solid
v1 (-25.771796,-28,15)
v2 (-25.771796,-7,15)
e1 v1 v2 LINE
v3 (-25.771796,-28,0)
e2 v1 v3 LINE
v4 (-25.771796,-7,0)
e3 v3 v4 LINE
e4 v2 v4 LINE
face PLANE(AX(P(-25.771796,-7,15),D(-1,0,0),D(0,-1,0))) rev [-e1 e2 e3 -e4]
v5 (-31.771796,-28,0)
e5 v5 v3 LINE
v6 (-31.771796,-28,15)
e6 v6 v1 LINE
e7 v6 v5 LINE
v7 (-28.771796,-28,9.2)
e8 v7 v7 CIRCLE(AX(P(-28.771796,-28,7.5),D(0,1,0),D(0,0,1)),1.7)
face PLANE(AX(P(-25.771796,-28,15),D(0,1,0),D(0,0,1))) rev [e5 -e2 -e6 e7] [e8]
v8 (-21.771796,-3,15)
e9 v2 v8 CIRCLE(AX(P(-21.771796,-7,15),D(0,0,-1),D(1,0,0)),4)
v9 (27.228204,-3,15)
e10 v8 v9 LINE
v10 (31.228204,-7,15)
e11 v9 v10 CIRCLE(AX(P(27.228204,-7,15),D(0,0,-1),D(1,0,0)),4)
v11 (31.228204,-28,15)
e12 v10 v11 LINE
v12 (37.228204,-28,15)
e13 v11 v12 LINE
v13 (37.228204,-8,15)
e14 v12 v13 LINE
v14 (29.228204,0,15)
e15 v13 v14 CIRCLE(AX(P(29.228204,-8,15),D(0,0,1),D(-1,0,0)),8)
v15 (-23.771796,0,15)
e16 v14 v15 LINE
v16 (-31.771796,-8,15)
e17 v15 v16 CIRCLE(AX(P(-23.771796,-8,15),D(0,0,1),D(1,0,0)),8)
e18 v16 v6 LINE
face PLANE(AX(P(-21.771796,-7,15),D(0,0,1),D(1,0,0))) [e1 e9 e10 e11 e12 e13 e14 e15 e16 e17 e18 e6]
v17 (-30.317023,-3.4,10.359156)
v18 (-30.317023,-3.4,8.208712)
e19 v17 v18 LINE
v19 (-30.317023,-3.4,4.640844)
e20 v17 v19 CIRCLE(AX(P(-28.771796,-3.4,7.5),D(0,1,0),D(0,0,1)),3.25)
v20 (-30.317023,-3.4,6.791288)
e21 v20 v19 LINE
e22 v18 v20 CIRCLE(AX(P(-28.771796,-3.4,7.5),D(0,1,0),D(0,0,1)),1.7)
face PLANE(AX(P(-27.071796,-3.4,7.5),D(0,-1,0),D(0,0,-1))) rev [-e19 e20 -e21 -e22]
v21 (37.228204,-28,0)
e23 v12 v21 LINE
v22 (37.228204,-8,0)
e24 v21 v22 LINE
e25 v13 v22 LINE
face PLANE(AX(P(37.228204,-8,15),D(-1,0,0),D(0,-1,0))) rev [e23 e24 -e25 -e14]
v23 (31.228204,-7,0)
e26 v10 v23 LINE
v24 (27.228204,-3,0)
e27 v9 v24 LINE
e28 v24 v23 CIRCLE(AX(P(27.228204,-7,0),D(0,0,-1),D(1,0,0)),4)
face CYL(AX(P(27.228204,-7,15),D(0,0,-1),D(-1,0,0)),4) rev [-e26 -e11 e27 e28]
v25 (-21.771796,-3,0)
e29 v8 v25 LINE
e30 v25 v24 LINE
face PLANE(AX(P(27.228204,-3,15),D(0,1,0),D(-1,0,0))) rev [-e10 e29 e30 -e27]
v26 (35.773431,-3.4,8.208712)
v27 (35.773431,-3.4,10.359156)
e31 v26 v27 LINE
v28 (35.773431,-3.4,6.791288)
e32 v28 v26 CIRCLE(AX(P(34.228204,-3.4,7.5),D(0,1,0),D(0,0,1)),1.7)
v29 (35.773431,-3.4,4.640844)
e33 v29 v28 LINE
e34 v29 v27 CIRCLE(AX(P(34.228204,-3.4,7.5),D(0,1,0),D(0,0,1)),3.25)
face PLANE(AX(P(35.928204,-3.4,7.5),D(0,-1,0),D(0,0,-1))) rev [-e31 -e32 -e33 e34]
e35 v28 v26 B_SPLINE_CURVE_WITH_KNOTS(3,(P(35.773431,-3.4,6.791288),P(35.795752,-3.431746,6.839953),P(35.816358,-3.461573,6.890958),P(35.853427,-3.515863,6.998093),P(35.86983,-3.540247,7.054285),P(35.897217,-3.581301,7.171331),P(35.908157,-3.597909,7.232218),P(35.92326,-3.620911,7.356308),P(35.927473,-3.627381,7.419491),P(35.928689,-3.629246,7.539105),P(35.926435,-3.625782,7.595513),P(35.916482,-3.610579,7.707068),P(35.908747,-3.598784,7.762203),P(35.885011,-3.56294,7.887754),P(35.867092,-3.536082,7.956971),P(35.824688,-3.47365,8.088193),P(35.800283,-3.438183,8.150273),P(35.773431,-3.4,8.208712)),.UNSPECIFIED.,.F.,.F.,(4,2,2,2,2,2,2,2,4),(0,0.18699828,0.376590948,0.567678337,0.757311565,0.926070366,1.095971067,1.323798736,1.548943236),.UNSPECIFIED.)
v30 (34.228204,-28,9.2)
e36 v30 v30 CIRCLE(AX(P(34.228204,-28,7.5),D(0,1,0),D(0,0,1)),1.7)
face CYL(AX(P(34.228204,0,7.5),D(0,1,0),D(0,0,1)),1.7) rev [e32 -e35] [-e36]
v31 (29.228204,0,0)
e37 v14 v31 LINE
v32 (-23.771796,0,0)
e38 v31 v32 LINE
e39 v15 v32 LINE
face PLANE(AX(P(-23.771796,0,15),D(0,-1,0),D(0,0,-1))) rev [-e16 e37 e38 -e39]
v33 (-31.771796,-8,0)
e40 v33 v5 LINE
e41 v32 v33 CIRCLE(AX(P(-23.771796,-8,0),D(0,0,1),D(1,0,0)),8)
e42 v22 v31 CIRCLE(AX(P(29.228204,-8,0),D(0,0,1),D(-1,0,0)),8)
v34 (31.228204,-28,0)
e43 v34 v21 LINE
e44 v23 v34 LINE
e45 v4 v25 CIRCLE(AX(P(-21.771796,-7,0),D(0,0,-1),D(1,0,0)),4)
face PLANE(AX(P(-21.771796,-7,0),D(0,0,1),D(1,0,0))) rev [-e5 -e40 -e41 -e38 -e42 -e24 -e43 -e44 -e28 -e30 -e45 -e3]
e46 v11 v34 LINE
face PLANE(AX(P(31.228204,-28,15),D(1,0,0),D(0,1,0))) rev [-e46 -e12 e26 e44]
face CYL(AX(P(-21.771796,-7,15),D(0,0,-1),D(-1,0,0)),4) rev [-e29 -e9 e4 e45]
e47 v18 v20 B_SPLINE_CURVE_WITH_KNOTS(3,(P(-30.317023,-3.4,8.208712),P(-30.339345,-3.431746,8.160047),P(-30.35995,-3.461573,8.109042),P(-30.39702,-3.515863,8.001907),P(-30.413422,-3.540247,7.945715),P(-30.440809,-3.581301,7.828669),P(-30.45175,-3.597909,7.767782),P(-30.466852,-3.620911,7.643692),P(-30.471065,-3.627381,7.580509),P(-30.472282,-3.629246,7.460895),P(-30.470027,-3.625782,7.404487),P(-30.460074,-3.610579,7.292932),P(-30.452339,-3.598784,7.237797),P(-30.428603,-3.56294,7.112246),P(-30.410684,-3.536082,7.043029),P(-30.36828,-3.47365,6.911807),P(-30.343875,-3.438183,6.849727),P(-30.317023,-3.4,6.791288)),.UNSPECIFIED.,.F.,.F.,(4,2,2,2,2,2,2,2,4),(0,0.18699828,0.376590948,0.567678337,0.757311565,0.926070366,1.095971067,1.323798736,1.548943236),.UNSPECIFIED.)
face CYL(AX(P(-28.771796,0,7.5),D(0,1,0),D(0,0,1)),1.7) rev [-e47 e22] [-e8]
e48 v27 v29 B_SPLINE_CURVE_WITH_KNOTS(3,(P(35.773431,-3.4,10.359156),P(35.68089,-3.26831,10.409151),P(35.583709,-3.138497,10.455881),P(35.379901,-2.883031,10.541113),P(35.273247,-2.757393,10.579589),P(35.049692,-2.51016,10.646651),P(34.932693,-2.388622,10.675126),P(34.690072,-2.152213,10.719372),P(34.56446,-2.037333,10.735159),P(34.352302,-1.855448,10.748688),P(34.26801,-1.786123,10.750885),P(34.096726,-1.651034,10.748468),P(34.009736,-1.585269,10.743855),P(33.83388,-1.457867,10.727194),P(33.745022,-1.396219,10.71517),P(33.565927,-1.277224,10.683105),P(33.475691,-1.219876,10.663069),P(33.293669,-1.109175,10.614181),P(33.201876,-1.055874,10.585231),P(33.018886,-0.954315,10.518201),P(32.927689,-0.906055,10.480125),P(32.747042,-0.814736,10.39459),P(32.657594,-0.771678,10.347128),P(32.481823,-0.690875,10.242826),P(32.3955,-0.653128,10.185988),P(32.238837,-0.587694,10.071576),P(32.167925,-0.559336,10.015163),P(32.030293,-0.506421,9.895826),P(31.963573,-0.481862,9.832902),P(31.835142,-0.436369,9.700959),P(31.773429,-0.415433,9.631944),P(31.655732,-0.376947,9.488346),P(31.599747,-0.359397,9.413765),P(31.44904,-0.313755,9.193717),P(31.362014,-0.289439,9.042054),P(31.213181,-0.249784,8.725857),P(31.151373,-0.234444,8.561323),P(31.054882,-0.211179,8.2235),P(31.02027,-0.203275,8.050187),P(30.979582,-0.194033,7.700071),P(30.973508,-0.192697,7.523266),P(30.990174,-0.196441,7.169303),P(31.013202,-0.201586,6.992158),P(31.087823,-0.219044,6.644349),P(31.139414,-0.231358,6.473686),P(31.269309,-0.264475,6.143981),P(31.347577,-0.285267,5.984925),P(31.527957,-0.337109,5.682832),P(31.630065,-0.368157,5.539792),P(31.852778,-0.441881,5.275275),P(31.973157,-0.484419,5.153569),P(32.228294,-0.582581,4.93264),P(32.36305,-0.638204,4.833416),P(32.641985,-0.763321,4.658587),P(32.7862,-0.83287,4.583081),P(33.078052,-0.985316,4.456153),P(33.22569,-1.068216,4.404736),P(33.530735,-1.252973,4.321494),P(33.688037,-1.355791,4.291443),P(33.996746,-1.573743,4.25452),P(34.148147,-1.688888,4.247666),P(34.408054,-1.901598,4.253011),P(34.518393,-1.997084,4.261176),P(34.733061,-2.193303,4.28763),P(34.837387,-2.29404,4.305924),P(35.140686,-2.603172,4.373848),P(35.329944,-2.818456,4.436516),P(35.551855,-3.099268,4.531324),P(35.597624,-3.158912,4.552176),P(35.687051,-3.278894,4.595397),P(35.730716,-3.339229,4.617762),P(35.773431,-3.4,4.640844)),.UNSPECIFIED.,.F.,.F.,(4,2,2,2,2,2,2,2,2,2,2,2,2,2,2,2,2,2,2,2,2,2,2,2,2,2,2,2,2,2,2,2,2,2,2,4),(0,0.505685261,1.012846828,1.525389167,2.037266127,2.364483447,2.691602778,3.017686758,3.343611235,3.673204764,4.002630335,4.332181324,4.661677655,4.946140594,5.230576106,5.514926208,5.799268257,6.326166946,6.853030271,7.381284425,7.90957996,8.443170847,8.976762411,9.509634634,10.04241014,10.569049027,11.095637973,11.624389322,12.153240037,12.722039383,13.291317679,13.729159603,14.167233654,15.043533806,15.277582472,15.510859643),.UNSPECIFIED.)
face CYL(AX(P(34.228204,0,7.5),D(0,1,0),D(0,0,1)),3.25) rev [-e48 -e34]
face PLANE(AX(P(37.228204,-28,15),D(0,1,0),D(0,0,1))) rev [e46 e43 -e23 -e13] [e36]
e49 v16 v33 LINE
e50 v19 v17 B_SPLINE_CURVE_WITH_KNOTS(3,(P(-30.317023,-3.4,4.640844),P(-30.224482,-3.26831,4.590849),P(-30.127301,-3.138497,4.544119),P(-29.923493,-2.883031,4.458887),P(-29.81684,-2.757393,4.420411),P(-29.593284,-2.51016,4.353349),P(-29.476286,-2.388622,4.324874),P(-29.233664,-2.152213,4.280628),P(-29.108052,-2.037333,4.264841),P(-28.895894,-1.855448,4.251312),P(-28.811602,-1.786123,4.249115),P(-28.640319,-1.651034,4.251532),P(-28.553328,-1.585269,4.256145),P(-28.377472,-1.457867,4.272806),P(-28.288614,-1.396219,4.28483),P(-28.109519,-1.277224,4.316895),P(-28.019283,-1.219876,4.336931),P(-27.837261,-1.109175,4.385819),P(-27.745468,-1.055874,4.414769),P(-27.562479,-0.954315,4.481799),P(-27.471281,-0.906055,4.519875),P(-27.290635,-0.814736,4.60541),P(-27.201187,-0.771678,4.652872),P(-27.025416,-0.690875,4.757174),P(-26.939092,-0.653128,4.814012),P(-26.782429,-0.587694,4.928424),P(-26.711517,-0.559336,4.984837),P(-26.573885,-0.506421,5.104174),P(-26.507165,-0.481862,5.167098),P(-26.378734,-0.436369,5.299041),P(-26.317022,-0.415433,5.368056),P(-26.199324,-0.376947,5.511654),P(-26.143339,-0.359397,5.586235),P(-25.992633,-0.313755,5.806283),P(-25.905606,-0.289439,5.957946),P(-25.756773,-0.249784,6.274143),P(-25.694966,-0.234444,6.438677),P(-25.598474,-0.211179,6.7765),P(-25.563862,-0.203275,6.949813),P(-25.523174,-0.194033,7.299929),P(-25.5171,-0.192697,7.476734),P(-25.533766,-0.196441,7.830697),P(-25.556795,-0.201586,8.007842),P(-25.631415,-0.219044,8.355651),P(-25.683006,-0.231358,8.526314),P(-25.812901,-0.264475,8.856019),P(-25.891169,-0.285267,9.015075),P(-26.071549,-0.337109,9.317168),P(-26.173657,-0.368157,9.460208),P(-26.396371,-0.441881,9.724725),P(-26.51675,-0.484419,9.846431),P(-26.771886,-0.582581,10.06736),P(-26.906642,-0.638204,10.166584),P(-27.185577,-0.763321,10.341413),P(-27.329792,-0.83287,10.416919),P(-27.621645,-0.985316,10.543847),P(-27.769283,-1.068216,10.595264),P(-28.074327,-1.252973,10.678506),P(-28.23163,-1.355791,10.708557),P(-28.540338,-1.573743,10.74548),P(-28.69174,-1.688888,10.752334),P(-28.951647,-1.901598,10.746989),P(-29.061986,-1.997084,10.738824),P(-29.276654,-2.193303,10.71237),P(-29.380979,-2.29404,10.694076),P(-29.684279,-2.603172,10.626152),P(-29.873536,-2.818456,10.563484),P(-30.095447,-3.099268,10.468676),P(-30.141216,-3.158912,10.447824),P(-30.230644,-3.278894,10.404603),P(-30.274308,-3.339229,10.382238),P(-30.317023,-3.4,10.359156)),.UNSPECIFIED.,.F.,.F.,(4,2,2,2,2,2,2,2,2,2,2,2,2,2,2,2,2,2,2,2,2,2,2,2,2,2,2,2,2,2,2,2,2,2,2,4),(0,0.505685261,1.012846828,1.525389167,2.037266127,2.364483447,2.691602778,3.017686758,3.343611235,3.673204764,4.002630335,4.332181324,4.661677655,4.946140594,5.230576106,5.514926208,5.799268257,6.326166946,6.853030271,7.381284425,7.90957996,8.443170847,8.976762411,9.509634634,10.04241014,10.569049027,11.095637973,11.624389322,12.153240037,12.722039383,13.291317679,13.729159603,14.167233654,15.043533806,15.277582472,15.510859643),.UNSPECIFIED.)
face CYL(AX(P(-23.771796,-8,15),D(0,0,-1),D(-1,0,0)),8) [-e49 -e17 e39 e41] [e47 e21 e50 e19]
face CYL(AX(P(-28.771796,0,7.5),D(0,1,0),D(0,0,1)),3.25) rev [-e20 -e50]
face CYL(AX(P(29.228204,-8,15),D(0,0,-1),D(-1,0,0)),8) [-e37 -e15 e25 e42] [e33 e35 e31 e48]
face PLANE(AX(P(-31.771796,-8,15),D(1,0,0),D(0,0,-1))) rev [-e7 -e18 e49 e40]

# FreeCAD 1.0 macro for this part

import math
import FreeCAD as App
import Part
import Sketcher
Q = App.Units.Quantity

doc = App.newDocument("Part")
body = doc.addObject("PartDesign::Body", "Body")

# Sketch on XY plane
sketch1 = body.newObject("Sketcher::SketchObject", "Sketch")
sketch1.AttachmentSupport = (doc.getObject("XY_Plane"), [""])
sketch1.MapMode = "FlatFace"
sketch1.addGeometry([
    Part.LineSegment(App.Vector(29.2, 0, 0), App.Vector(-23.8, 0, 0)),  # 0
    Part.ArcOfCircle(Part.Circle(App.Vector(-23.8, -8, 0), App.Vector(0, 0, 1), 8), math.radians(90), math.radians(180)),  # 1
    Part.LineSegment(App.Vector(-31.8, -8, 0), App.Vector(-31.8, -28, 0)),  # 2
    Part.LineSegment(App.Vector(-31.8, -28, 0), App.Vector(-25.8, -28, 0)),  # 3
    Part.LineSegment(App.Vector(-25.8, -28, 0), App.Vector(-25.8, -7, 0)),  # 4
    Part.ArcOfCircle(Part.Circle(App.Vector(-21.8, -7, 0), App.Vector(0, 0, 1), 4), math.radians(90), math.radians(180)),  # 5
    Part.LineSegment(App.Vector(-21.8, -3, 0), App.Vector(27.2, -3, 0)),  # 6
    Part.ArcOfCircle(Part.Circle(App.Vector(27.2, -7, 0), App.Vector(0, 0, 1), 4), math.radians(0), math.radians(90)),  # 7
    Part.LineSegment(App.Vector(31.2, -7, 0), App.Vector(31.2, -28, 0)),  # 8
    Part.LineSegment(App.Vector(31.2, -28, 0), App.Vector(37.2, -28, 0)),  # 9
    Part.LineSegment(App.Vector(37.2, -28, 0), App.Vector(37.2, -8, 0)),  # 10
    Part.ArcOfCircle(Part.Circle(App.Vector(29.2, -8, 0), App.Vector(0, 0, 1), 8), math.radians(0), math.radians(90)),  # 11
], False)
sketch1.addConstraint([
    Sketcher.Constraint("Tangent", 0, 2, 1, 1),
    Sketcher.Constraint("Tangent", 1, 2, 2, 1),
    Sketcher.Constraint("Coincident", 2, 2, 3, 1),
    Sketcher.Constraint("Coincident", 3, 2, 4, 1),
    Sketcher.Constraint("Tangent", 4, 2, 5, 2),
    Sketcher.Constraint("Tangent", 5, 1, 6, 1),
    Sketcher.Constraint("Tangent", 6, 2, 7, 2),
    Sketcher.Constraint("Tangent", 7, 1, 8, 1),
    Sketcher.Constraint("Coincident", 8, 2, 9, 1),
    Sketcher.Constraint("Coincident", 9, 2, 10, 1),
    Sketcher.Constraint("Tangent", 10, 2, 11, 1),
    Sketcher.Constraint("Tangent", 11, 2, 0, 1),
    Sketcher.Constraint("Horizontal", 0),
    Sketcher.Constraint("Vertical", 2),
    Sketcher.Constraint("Horizontal", 3),
    Sketcher.Constraint("Vertical", 4),
    Sketcher.Constraint("Horizontal", 6),
    Sketcher.Constraint("Vertical", 8),
    Sketcher.Constraint("Horizontal", 9),
    Sketcher.Constraint("Vertical", 10),
    Sketcher.Constraint("Equal", 5, 7),
    Sketcher.Constraint("Equal", 1, 11),
    Sketcher.Constraint("PointOnObject", 0, 2, -1),
    Sketcher.Constraint("Horizontal", 3, 2, 8, 2),
    Sketcher.Constraint("Equal", 3, 9),
    Sketcher.Constraint("Radius", 1, Q("8 mm")),
    Sketcher.Constraint("Radius", 5, Q("4 mm")),
    Sketcher.Constraint("DistanceX", 0, 2, 0, 1, Q("53 mm")),
    Sketcher.Constraint("DistanceX", 3, 1, 3, 2, Q("6 mm")),
    Sketcher.Constraint("DistanceY", 2, 2, 2, 1, Q("20 mm")),
    Sketcher.Constraint("DistanceY", 4, 1, 4, 2, Q("21 mm")),
    Sketcher.Constraint("DistanceX", 1, 3, -1, 1, Q("23.771796 mm")),
])
pad1 = body.newObject("PartDesign::Pad", "Pad")
pad1.Profile = sketch1
pad1.Length = 15

# Sketch on XZ plane
sketch2 = body.newObject("Sketcher::SketchObject", "Sketch001")
sketch2.AttachmentSupport = (doc.getObject("XZ_Plane"), [""])
sketch2.MapMode = "FlatFace"
sketch2.addGeometry([
    Part.Circle(App.Vector(-28.8, 7.5, 0), App.Vector(0, 0, 1), 1.7),
    Part.Circle(App.Vector(34.2, 7.5, 0), App.Vector(0, 0, 1), 1.7),
], False)
sketch2.addConstraint([
    Sketcher.Constraint("Equal", 0, 1),
    Sketcher.Constraint("Horizontal", 0, 3, 1, 3),
    Sketcher.Constraint("Diameter", 0, Q("3.4 mm")),
    Sketcher.Constraint("DistanceX", 0, 3, 1, 3, Q("63 mm")),
    Sketcher.Constraint("DistanceY", -1, 1, 0, 3, Q("7.5 mm")),
    Sketcher.Constraint("DistanceX", 0, 3, -1, 1, Q("28.771796 mm")),
])
doc.recompute()
hole = body.newObject("PartDesign::Hole", "Hole")
hole.Profile = sketch2
hole.ThreadType = "None"
hole.Diameter = 3.4
hole.DepthType = "ThroughAll"
hole.HoleCutType = "Counterbore"
hole.HoleCutDiameter = 6.5
hole.HoleCutDepth = 3.4
hole.Reversed = True

doc.recompute()
